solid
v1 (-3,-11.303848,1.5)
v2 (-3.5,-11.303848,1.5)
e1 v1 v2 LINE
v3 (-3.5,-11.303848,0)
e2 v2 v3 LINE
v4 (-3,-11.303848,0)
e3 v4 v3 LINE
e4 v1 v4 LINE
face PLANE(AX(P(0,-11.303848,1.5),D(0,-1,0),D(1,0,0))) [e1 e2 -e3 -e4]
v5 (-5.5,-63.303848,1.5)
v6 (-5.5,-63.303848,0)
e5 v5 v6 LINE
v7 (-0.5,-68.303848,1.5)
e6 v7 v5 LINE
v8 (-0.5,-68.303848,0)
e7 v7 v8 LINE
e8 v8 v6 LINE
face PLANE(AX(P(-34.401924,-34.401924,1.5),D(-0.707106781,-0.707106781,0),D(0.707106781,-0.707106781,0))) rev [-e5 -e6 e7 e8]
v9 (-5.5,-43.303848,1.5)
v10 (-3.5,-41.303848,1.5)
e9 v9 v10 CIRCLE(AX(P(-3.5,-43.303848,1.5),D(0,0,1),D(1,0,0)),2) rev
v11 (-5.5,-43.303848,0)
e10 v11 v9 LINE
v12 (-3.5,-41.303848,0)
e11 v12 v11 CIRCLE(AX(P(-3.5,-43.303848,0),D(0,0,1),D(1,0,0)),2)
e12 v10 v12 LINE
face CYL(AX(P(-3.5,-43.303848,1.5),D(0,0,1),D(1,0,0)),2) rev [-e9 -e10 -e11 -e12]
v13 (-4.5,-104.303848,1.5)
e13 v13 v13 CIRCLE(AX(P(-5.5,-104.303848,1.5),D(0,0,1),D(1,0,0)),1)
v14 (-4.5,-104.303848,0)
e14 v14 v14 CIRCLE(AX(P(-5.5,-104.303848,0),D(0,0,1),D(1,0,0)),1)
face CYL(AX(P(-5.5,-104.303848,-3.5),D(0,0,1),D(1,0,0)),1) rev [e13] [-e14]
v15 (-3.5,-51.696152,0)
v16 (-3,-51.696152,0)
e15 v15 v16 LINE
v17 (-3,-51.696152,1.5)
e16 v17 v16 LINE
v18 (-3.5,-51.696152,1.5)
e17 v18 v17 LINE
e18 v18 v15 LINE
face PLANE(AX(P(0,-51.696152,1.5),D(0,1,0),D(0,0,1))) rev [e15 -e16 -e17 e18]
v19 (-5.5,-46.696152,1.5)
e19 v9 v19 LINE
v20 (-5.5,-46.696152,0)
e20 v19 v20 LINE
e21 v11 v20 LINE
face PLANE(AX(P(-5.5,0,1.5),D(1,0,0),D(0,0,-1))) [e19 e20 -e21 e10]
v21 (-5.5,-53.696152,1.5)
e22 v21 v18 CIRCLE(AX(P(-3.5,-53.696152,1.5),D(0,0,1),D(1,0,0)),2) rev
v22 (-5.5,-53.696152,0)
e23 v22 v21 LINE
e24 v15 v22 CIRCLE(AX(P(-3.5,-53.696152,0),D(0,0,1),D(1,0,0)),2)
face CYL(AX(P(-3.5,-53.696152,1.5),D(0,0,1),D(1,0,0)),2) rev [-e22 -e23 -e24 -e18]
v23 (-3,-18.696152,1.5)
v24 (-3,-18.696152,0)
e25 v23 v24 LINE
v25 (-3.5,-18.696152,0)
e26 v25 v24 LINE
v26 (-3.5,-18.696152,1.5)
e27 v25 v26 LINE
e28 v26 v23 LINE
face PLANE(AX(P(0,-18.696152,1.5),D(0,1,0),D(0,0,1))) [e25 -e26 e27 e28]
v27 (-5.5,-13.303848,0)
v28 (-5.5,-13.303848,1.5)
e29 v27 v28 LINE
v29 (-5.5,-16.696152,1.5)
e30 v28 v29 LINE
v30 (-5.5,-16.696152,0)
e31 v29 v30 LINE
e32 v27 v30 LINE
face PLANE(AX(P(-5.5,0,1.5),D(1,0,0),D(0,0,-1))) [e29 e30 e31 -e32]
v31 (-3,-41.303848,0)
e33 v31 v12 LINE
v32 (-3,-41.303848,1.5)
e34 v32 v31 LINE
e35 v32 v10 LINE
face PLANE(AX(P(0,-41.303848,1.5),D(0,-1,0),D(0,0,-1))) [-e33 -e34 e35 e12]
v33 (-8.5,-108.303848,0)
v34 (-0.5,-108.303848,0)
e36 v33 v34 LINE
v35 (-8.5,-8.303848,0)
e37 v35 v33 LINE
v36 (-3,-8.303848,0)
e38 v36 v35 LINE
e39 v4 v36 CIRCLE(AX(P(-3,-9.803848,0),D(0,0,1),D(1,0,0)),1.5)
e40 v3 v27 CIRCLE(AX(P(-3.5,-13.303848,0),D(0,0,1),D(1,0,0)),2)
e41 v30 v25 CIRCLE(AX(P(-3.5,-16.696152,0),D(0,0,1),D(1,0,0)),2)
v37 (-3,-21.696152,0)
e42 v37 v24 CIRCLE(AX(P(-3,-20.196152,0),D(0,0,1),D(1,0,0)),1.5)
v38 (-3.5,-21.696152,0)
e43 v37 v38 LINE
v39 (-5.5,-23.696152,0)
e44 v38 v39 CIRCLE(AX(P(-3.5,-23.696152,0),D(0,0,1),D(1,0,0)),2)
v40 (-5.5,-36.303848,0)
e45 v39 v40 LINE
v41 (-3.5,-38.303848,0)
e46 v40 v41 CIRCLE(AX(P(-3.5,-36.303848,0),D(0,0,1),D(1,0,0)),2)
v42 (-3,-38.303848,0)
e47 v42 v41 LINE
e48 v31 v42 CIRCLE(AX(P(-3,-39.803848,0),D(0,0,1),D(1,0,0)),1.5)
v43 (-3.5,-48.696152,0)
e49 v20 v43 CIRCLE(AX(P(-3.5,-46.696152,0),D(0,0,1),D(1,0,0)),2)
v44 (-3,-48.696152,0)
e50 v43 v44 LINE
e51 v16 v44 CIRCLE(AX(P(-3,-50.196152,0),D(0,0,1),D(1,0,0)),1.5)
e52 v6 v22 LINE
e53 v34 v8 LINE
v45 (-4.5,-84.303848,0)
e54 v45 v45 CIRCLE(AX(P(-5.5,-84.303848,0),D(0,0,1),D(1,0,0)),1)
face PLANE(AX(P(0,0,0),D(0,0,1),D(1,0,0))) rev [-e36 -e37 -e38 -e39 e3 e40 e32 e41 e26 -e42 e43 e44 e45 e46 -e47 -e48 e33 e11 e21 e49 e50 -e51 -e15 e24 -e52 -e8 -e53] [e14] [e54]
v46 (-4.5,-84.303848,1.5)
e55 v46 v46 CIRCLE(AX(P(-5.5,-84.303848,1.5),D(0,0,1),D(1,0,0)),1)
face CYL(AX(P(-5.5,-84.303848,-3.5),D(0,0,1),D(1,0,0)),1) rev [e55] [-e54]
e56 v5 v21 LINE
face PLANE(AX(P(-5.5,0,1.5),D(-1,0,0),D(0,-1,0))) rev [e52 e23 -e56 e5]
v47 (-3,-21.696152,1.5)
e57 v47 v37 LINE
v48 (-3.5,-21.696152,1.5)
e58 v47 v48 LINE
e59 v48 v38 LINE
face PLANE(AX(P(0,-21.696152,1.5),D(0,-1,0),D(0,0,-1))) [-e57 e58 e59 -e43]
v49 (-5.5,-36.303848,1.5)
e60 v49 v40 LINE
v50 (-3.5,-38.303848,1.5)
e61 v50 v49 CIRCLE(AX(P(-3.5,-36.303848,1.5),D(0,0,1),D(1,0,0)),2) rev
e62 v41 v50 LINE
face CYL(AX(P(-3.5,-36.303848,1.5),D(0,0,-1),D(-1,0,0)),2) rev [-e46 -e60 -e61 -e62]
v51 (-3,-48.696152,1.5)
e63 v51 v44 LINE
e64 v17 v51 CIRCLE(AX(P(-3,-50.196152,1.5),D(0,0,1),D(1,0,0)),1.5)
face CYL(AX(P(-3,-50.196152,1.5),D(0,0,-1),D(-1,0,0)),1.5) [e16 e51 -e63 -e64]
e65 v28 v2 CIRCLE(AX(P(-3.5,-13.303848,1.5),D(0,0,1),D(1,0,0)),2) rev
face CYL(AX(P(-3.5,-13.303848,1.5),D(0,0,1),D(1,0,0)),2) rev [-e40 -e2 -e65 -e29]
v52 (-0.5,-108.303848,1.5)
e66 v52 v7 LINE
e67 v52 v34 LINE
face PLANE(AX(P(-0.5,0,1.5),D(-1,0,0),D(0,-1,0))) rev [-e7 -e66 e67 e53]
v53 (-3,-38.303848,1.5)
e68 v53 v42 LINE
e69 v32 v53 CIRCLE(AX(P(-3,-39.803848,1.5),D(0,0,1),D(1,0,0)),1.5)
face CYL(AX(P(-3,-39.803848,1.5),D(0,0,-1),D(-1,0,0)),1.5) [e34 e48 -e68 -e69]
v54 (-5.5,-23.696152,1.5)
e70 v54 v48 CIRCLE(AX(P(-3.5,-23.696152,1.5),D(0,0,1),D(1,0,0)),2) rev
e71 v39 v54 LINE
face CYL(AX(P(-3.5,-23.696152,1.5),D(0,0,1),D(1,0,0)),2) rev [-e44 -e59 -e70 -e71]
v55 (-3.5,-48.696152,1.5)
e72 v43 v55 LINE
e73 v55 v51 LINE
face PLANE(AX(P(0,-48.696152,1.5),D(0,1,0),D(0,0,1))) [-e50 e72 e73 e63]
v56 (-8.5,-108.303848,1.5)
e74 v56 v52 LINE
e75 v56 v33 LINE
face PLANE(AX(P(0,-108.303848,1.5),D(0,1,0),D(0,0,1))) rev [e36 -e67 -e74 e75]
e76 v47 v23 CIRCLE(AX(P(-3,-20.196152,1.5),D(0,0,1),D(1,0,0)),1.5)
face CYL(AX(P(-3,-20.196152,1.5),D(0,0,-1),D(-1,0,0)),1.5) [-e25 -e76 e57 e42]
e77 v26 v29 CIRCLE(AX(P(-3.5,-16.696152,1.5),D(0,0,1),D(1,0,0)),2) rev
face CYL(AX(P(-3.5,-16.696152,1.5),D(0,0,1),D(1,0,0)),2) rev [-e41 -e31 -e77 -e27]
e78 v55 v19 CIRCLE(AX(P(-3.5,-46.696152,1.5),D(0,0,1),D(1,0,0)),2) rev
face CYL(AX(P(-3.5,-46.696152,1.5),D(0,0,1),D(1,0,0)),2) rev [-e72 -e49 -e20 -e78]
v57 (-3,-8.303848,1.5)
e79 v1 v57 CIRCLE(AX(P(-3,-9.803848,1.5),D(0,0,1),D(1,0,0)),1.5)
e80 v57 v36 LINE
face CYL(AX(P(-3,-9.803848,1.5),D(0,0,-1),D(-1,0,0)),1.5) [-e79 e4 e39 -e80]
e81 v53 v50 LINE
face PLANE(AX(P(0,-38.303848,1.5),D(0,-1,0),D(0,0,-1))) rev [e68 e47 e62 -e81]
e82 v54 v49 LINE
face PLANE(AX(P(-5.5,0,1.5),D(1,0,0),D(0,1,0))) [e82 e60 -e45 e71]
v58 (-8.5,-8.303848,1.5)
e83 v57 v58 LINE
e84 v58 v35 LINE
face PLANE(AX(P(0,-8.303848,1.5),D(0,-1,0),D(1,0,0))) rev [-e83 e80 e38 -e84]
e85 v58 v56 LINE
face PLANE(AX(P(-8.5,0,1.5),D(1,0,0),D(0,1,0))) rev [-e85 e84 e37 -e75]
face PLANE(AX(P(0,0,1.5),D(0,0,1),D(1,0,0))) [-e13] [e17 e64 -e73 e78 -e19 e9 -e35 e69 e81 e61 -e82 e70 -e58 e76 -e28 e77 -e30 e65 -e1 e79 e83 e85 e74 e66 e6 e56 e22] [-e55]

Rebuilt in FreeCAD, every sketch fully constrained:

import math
import FreeCAD as App
import Part
import Sketcher
Q = App.Units.Quantity


def edges_at(feature, points):
    """Names of the edges that pass closest to the given points."""
    edges = feature.Shape.Edges
    near = lambda p: min(range(len(edges)), key=lambda i: edges[i].distToShape(Part.Vertex(*p))[0])
    return sorted({f"Edge{near(p) + 1}" for p in points})

doc = App.newDocument("Part")
body = doc.addObject("PartDesign::Body", "Body")

# Sketch on XY plane
sketch1 = body.newObject("Sketcher::SketchObject", "Sketch")
sketch1.AttachmentSupport = (doc.getObject("XY_Plane"), [""])
sketch1.MapMode = "FlatFace"
sketch1.addGeometry([
    Part.LineSegment(App.Vector(-5.5, -11.3, 0), App.Vector(-3, -11.3, 0)),  # 0
    Part.ArcOfCircle(Part.Circle(App.Vector(-3, -9.8, 0), App.Vector(0, 0, 1), 1.5), math.radians(-90), math.radians(90)),  # 1
    Part.LineSegment(App.Vector(-3, -8.3, 0), App.Vector(-8.5, -8.3, 0)),  # 2
    Part.LineSegment(App.Vector(-8.5, -8.3, 0), App.Vector(-8.5, -108.3, 0)),  # 3
    Part.LineSegment(App.Vector(-8.5, -108.3, 0), App.Vector(-0.5, -108.3, 0)),  # 4
    Part.LineSegment(App.Vector(-0.5, -108.3, 0), App.Vector(-0.5, -68.3, 0)),  # 5
    Part.LineSegment(App.Vector(-0.5, -68.3, 0), App.Vector(-5.5, -63.3, 0)),  # 6
    Part.LineSegment(App.Vector(-5.5, -63.3, 0), App.Vector(-5.5, -51.7, 0)),  # 7
    Part.LineSegment(App.Vector(-5.5, -51.7, 0), App.Vector(-3, -51.7, 0)),  # 8
    Part.ArcOfCircle(Part.Circle(App.Vector(-3, -50.2, 0), App.Vector(0, 0, 1), 1.5), math.radians(-90), math.radians(90)),  # 9
    Part.LineSegment(App.Vector(-3, -48.7, 0), App.Vector(-5.5, -48.7, 0)),  # 10
    Part.LineSegment(App.Vector(-5.5, -48.7, 0), App.Vector(-5.5, -41.3, 0)),  # 11
    Part.LineSegment(App.Vector(-5.5, -41.3, 0), App.Vector(-3, -41.3, 0)),  # 12
    Part.ArcOfCircle(Part.Circle(App.Vector(-3, -39.8, 0), App.Vector(0, 0, 1), 1.5), math.radians(-90), math.radians(90)),  # 13
    Part.LineSegment(App.Vector(-3, -38.3, 0), App.Vector(-5.5, -38.3, 0)),  # 14
    Part.LineSegment(App.Vector(-5.5, -38.3, 0), App.Vector(-5.5, -21.7, 0)),  # 15
    Part.LineSegment(App.Vector(-5.5, -21.7, 0), App.Vector(-3, -21.7, 0)),  # 16
    Part.ArcOfCircle(Part.Circle(App.Vector(-3, -20.2, 0), App.Vector(0, 0, 1), 1.5), math.radians(-90), math.radians(90)),  # 17
    Part.LineSegment(App.Vector(-3, -18.7, 0), App.Vector(-5.5, -18.7, 0)),  # 18
    Part.LineSegment(App.Vector(-5.5, -18.7, 0), App.Vector(-5.5, -11.3, 0)),  # 19
], False)
sketch1.addConstraint([
    Sketcher.Constraint("Tangent", 0, 2, 1, 1),
    Sketcher.Constraint("Tangent", 1, 2, 2, 1),
    Sketcher.Constraint("Coincident", 2, 2, 3, 1),
    Sketcher.Constraint("Coincident", 3, 2, 4, 1),
    Sketcher.Constraint("Coincident", 4, 2, 5, 1),
    Sketcher.Constraint("Coincident", 5, 2, 6, 1),
    Sketcher.Constraint("Coincident", 6, 2, 7, 1),
    Sketcher.Constraint("Coincident", 7, 2, 8, 1),
    Sketcher.Constraint("Tangent", 8, 2, 9, 1),
    Sketcher.Constraint("Tangent", 9, 2, 10, 1),
    Sketcher.Constraint("Coincident", 10, 2, 11, 1),
    Sketcher.Constraint("Coincident", 11, 2, 12, 1),
    Sketcher.Constraint("Tangent", 12, 2, 13, 1),
    Sketcher.Constraint("Tangent", 13, 2, 14, 1),
    Sketcher.Constraint("Coincident", 14, 2, 15, 1),
    Sketcher.Constraint("Coincident", 15, 2, 16, 1),
    Sketcher.Constraint("Tangent", 16, 2, 17, 1),
    Sketcher.Constraint("Tangent", 17, 2, 18, 1),
    Sketcher.Constraint("Coincident", 18, 2, 19, 1),
    Sketcher.Constraint("Coincident", 19, 2, 0, 1),
    Sketcher.Constraint("Horizontal", 0),
    Sketcher.Constraint("Horizontal", 2),
    Sketcher.Constraint("Vertical", 3),
    Sketcher.Constraint("Horizontal", 4),
    Sketcher.Constraint("Vertical", 5),
    Sketcher.Constraint("Vertical", 7),
    Sketcher.Constraint("Horizontal", 8),
    Sketcher.Constraint("Horizontal", 10),
    Sketcher.Constraint("Vertical", 11),
    Sketcher.Constraint("Horizontal", 12),
    Sketcher.Constraint("Horizontal", 14),
    Sketcher.Constraint("Vertical", 15),
    Sketcher.Constraint("Horizontal", 16),
    Sketcher.Constraint("Horizontal", 18),
    Sketcher.Constraint("Vertical", 19),
    Sketcher.Constraint("Equal", 1, 9),
    Sketcher.Constraint("Equal", 9, 13),
    Sketcher.Constraint("Equal", 13, 17),
    Sketcher.Constraint("Vertical", 1, 3, 9, 3),
    Sketcher.Constraint("Vertical", 9, 3, 13, 3),
    Sketcher.Constraint("Vertical", 13, 3, 17, 3),
    Sketcher.Constraint("Vertical", 7, 2, 10, 2),
    Sketcher.Constraint("Vertical", 11, 2, 14, 2),
    Sketcher.Constraint("Vertical", 15, 2, 18, 2),
    Sketcher.Constraint("Equal", 11, 19),
    Sketcher.Constraint("Radius", 1, 1.5),
    Sketcher.Constraint("DistanceX", 4, 1, 4, 2, 8.0),
    Sketcher.Constraint("DistanceY", 3, 2, 3, 1, 100.0),
    Sketcher.Constraint("DistanceY", 5, 1, 5, 2, 40.0),
    Sketcher.Constraint("Angle", 6, Q("135 deg")),
    Sketcher.Constraint("DistanceX", 0, 1, 0, 2, 2.5),
    Sketcher.Constraint("DistanceX", 2, 2, 2, 1, 5.5),
    Sketcher.Constraint("DistanceX", 1, 3, -1, 1, 3.0),
    Sketcher.Constraint("DistanceY", 13, 3, 1, 3, 30.0),
    Sketcher.Constraint("DistanceY", 7, 1, 7, 2, 11.607695),
    Sketcher.Constraint("DistanceY", 1, 3, -1, 1, 9.803848),
])
pad1 = body.newObject("PartDesign::Pad", "Pad")
pad1.Profile = sketch1
pad1.Length = 1.5
doc.recompute()

fillet = body.newObject("PartDesign::Fillet", "Fillet")
fillet.Base = (pad1, edges_at(pad1, [
    (-5.5, -51.696, 0.75),
    (-5.5, -11.304, 0.75),
    (-5.5, -18.696, 0.75),
    (-5.5, -21.696, 0.75),
    (-5.5, -38.304, 0.75),
    (-5.5, -41.304, 0.75),
    (-5.5, -48.696, 0.75),
]))
fillet.Radius = 2

# Sketch on XY plane
sketch2 = body.newObject("Sketcher::SketchObject", "Sketch001")
sketch2.AttachmentSupport = (doc.getObject("XY_Plane"), [""])
sketch2.MapMode = "FlatFace"
sketch2.AttachmentOffset = App.Placement(App.Vector(0, 0, 1.5), App.Rotation())
sketch2.addGeometry([
    Part.Circle(App.Vector(-5.5, -104.3, 0), App.Vector(0, 0, 1), 1),
    Part.Circle(App.Vector(-5.5, -84.3, 0), App.Vector(0, 0, 1), 1),
], False)
sketch2.addConstraint([
    Sketcher.Constraint("Equal", 0, 1),
    Sketcher.Constraint("Vertical", 0, 3, 1, 3),
    Sketcher.Constraint("Diameter", 0, 2.0),
    Sketcher.Constraint("DistanceY", 0, 3, 1, 3, 20.0),
    Sketcher.Constraint("DistanceX", 0, 3, -1, 1, 5.5),
    Sketcher.Constraint("DistanceY", 0, 3, -1, 1, 104.303848),
])
pocket1 = body.newObject("PartDesign::Pocket", "Pocket")
pocket1.Profile = sketch2
pocket1.Length = 5

doc.recompute()
